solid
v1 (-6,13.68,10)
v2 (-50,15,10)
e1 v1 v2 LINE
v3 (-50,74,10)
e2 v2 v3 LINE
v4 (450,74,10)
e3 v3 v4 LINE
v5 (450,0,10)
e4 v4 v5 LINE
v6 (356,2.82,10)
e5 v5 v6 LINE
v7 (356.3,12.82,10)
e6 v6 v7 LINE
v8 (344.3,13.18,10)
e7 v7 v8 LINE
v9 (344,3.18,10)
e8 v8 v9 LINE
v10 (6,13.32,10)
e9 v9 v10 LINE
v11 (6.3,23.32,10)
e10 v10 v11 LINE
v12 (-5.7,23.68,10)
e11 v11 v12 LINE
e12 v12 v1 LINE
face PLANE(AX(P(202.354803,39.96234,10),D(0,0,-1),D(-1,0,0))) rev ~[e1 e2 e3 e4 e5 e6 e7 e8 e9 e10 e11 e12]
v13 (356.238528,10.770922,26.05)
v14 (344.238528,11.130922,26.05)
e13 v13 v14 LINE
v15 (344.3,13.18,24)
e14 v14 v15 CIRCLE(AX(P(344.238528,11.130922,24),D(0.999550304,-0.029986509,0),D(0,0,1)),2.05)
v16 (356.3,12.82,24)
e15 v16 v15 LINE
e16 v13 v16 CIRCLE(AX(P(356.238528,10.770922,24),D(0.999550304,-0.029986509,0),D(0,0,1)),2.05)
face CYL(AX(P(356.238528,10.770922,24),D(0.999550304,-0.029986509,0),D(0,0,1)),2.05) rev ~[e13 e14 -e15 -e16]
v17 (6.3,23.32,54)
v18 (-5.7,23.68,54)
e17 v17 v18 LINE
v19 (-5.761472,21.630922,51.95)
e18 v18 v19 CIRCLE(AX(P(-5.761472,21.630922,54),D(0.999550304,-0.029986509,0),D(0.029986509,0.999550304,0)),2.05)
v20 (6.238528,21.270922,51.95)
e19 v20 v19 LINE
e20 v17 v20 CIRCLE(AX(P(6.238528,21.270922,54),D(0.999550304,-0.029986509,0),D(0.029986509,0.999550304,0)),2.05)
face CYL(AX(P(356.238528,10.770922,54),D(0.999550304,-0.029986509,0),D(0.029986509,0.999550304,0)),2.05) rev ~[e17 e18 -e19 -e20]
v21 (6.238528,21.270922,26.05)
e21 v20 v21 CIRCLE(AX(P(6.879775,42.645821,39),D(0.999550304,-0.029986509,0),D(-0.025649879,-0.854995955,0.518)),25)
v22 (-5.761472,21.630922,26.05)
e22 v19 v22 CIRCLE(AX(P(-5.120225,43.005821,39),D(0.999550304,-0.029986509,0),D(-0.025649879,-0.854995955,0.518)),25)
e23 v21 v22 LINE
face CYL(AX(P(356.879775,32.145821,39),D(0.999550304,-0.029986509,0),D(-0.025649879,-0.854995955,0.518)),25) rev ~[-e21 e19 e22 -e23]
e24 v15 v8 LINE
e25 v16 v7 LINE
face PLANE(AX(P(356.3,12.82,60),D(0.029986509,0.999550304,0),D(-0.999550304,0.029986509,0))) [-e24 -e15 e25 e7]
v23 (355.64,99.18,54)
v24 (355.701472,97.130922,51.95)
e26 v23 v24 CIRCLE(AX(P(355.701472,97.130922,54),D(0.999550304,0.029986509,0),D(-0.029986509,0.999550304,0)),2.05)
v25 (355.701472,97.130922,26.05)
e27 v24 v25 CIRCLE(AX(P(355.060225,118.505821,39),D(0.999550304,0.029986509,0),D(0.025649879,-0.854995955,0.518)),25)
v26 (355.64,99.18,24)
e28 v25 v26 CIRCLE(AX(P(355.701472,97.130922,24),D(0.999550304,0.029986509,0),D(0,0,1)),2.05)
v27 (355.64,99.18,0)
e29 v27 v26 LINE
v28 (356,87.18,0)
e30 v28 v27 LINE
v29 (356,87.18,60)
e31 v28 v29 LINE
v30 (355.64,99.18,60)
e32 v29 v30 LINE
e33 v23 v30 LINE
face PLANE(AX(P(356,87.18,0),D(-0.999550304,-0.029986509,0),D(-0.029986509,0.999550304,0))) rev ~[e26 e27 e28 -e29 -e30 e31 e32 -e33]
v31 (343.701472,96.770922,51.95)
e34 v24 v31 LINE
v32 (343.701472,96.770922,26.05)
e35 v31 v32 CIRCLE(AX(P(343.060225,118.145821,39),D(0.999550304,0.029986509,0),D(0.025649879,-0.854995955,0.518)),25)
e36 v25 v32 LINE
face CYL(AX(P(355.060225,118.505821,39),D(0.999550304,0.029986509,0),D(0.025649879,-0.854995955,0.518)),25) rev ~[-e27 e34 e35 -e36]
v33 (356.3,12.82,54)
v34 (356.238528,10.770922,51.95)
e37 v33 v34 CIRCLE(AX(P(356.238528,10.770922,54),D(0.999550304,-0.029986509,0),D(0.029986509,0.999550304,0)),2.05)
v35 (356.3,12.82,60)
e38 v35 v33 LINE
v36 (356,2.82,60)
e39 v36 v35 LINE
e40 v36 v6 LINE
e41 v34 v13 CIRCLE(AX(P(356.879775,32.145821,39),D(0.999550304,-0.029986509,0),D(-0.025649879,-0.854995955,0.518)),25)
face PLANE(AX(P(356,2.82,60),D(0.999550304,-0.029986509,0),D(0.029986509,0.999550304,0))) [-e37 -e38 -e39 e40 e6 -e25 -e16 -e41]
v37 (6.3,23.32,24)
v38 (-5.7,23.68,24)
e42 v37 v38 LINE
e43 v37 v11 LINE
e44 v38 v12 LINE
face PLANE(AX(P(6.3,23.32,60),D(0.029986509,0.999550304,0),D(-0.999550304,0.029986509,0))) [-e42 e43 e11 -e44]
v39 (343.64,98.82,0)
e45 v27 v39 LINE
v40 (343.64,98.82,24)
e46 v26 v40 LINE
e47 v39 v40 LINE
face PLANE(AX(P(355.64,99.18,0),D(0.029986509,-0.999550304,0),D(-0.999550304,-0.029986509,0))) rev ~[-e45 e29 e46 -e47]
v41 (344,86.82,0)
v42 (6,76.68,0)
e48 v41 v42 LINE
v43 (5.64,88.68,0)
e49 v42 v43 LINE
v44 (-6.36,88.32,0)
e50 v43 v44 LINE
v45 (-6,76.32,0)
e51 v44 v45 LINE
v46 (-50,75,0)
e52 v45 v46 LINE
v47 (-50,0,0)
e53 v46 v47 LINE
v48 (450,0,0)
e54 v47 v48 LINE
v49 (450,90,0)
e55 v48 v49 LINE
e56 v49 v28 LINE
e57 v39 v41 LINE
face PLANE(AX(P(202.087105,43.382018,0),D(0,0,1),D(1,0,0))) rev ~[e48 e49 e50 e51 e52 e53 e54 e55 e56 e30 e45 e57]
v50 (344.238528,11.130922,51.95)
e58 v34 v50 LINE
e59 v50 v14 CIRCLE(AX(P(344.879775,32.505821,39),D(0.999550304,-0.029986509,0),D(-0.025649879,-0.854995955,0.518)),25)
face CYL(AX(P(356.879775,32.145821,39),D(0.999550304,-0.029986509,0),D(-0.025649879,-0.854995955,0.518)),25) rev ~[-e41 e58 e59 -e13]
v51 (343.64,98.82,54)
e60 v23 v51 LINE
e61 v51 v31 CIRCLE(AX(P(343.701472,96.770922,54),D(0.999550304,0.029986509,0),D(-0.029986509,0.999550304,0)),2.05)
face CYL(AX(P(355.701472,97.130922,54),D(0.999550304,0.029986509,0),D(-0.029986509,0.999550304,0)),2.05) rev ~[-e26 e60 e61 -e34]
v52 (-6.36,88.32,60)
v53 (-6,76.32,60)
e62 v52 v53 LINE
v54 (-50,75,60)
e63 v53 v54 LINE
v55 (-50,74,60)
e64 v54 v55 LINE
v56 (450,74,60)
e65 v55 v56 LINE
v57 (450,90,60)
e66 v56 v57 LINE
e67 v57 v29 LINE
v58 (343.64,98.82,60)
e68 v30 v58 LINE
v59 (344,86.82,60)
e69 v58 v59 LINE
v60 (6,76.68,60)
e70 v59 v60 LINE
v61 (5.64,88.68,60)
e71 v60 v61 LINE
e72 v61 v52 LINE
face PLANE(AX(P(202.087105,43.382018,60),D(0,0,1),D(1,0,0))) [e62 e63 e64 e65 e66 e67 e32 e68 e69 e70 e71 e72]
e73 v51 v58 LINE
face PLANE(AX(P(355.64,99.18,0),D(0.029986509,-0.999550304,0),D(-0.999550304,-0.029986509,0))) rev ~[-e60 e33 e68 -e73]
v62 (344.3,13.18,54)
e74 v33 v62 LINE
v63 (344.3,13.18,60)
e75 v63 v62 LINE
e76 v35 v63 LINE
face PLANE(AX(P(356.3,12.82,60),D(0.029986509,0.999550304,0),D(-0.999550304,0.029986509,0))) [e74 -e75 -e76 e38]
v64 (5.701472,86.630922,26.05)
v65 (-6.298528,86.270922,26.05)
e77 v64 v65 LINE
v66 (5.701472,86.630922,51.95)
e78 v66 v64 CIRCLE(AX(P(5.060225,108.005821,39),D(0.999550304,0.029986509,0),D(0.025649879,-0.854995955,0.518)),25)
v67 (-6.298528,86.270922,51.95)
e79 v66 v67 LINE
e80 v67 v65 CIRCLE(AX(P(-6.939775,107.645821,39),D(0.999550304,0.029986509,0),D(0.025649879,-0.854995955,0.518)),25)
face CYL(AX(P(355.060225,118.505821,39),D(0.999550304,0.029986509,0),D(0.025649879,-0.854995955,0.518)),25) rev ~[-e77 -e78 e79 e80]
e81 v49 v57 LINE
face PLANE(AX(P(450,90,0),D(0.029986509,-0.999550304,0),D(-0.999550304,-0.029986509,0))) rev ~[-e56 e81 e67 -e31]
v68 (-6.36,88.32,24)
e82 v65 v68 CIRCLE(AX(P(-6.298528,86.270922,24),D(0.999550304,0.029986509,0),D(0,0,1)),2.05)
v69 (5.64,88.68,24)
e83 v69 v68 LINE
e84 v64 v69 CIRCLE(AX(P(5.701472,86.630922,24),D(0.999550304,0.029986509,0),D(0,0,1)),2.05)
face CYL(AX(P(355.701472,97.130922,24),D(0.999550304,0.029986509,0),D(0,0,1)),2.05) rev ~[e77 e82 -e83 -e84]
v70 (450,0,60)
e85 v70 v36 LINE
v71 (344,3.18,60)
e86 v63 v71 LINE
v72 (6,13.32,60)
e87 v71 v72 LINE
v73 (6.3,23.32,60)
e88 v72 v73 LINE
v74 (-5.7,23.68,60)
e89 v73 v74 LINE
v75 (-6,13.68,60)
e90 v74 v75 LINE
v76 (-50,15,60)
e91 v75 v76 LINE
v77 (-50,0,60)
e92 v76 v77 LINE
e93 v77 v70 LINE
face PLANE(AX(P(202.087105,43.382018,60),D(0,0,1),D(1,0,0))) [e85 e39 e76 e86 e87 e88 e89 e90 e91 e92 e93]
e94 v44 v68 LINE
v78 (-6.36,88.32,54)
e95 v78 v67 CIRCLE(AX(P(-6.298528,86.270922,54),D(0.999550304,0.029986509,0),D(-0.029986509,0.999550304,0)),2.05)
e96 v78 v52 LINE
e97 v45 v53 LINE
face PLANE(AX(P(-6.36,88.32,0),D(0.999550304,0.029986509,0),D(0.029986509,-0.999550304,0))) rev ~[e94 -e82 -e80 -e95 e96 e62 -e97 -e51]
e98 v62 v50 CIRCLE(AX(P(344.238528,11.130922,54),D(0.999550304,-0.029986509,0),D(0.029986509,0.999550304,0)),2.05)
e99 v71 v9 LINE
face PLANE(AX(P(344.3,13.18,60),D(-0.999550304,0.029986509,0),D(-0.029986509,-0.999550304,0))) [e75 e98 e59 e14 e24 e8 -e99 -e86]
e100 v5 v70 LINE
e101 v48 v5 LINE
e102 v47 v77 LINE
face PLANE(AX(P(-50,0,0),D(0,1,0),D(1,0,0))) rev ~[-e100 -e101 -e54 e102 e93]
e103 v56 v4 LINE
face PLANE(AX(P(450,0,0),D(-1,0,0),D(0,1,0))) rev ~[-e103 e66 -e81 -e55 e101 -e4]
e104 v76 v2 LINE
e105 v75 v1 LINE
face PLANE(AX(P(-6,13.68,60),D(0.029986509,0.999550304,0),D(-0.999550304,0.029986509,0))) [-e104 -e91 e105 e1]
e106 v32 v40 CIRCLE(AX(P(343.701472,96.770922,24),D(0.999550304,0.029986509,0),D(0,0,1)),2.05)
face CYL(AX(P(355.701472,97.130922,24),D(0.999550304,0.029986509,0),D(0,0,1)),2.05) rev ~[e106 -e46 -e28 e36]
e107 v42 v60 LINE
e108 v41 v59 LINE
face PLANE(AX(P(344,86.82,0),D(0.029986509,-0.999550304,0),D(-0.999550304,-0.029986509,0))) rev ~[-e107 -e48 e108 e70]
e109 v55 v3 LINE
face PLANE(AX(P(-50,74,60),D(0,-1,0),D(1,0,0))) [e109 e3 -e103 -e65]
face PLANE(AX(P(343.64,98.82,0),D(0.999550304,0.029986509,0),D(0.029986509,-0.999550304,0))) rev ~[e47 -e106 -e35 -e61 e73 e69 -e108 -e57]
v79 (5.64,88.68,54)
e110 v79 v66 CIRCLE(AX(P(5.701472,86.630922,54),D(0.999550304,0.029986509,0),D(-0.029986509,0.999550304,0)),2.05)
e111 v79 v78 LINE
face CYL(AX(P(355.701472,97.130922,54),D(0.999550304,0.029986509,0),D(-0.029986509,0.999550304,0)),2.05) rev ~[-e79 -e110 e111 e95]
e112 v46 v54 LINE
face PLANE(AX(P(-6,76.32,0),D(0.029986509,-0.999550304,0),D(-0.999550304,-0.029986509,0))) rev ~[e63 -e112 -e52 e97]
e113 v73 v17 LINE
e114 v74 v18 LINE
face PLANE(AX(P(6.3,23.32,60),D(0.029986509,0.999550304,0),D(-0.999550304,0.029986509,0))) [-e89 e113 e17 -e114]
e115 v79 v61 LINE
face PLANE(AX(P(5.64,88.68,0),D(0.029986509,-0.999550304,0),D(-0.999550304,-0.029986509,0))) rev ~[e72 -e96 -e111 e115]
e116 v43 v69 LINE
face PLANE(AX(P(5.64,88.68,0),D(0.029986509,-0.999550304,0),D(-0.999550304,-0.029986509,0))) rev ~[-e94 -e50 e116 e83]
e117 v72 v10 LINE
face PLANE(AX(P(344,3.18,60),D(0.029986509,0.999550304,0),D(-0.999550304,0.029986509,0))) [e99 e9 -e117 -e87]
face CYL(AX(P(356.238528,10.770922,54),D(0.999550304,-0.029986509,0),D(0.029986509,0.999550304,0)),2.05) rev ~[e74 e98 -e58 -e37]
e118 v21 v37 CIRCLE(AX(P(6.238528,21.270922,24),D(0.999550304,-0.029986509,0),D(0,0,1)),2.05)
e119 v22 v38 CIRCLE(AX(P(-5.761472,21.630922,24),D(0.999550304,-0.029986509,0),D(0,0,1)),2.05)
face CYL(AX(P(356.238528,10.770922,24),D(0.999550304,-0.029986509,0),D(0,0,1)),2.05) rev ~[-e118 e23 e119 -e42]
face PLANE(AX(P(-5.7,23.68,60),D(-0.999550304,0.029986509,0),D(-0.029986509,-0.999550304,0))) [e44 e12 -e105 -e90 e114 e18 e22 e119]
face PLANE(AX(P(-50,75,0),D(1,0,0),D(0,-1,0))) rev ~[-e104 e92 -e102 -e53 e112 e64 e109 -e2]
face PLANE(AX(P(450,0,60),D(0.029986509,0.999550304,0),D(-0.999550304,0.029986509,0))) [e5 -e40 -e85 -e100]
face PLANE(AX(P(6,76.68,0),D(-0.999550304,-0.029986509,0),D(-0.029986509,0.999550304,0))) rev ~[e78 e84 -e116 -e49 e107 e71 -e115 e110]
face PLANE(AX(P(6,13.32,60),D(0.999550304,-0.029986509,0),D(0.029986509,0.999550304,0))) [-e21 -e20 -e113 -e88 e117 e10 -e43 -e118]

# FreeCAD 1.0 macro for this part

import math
import FreeCAD as App
import Part
import Sketcher
Q = App.Units.Quantity


def add_polygon(sketch, points):
    """Adds a closed chain of lines whose ends are joined by coincident constraints."""
    first, n = sketch.GeometryCount, len(points)
    for a, b in zip(points, points[1:] + points[:1]):
        sketch.addGeometry(Part.LineSegment(App.Vector(*a, 0), App.Vector(*b, 0)), False)
    for i in range(n):
        sketch.addConstraint(Sketcher.Constraint("Coincident", first + i, 2, first + (i + 1) % n, 1))

doc = App.newDocument("Part")
body = doc.addObject("PartDesign::Body", "Body")

# Sketch on XY plane
sketch1 = body.newObject("Sketcher::SketchObject", "Sketch")
sketch1.AttachmentSupport = (doc.getObject("XY_Plane"), [""])
sketch1.MapMode = "FlatFace"
add_polygon(sketch1, [(450, 0), (450, 90), (356, 87.18), (355.64, 99.18), (343.64, 98.82), (344, 86.82), (6, 76.68), (5.64, 88.68), (-6.36, 88.32), (-6, 76.32), (-50, 75), (-50, 0)])  # lines 0-11
sketch1.addConstraint(Sketcher.Constraint("Vertical", 0))
sketch1.addConstraint(Sketcher.Constraint("Vertical", 10))
sketch1.addConstraint(Sketcher.Constraint("Horizontal", 11))
sketch1.addConstraint(Sketcher.Constraint("PointOnObject", 10, 2, -1))
sketch1.addConstraint(Sketcher.Constraint("Perpendicular", 1, 2))
sketch1.addConstraint(Sketcher.Constraint("Perpendicular", 2, 3))
sketch1.addConstraint(Sketcher.Constraint("Perpendicular", 3, 4))
sketch1.addConstraint(Sketcher.Constraint("Perpendicular", 4, 5))
sketch1.addConstraint(Sketcher.Constraint("Perpendicular", 5, 6))
sketch1.addConstraint(Sketcher.Constraint("Perpendicular", 6, 7))
sketch1.addConstraint(Sketcher.Constraint("Perpendicular", 7, 8))
sketch1.addConstraint(Sketcher.Constraint("Perpendicular", 8, 9))
sketch1.addConstraint(Sketcher.Constraint("Equal", 2, 3))
sketch1.addConstraint(Sketcher.Constraint("Equal", 3, 4))
sketch1.addConstraint(Sketcher.Constraint("Equal", 4, 6))
sketch1.addConstraint(Sketcher.Constraint("Equal", 6, 7))
sketch1.addConstraint(Sketcher.Constraint("Equal", 7, 8))
sketch1.addConstraint(Sketcher.Constraint("DistanceX", 11, 1, 11, 2, Q("500 mm")))
sketch1.addConstraint(Sketcher.Constraint("DistanceY", 0, 1, 0, 2, Q("90 mm")))
sketch1.addConstraint(Sketcher.Constraint("DistanceY", 10, 2, 10, 1, Q("75 mm")))
sketch1.addConstraint(Sketcher.Constraint("DistanceX", -1, 1, 0, 2, Q("450 mm")))
sketch1.addConstraint(Sketcher.Constraint("DistanceX", -1, 1, 1, 2, Q("356 mm")))
sketch1.addConstraint(Sketcher.Constraint("DistanceX", -1, 1, 4, 2, Q("344 mm")))
sketch1.addConstraint(Sketcher.Constraint("DistanceX", -1, 1, 5, 2, Q("6 mm")))
pad1 = body.newObject("PartDesign::Pad", "Pad")
pad1.Profile = sketch1
pad1.Length = 60

# Sketch on XY plane
sketch2 = body.newObject("Sketcher::SketchObject", "Sketch001")
sketch2.AttachmentSupport = (doc.getObject("XY_Plane"), [""])
sketch2.MapMode = "FlatFace"
sketch2.AttachmentOffset = App.Placement(App.Vector(0, 0, 60), App.Rotation())
add_polygon(sketch2, [(-50, 74), (-50, 15), (-6, 13.68), (-5.7, 23.68), (6.3, 23.32), (6, 13.32), (344, 3.18), (344.3, 13.18), (356.3, 12.82), (356, 2.82), (450, 0), (450, 74)])  # lines 0-11
sketch2.addConstraint(Sketcher.Constraint("Vertical", 0))
sketch2.addConstraint(Sketcher.Constraint("Vertical", 10))
sketch2.addConstraint(Sketcher.Constraint("Horizontal", 11))
sketch2.addConstraint(Sketcher.Constraint("PointOnObject", 9, 2, -1))
sketch2.addConstraint(Sketcher.Constraint("Perpendicular", 1, 2))
sketch2.addConstraint(Sketcher.Constraint("Perpendicular", 2, 3))
sketch2.addConstraint(Sketcher.Constraint("Perpendicular", 3, 4))
sketch2.addConstraint(Sketcher.Constraint("Perpendicular", 4, 5))
sketch2.addConstraint(Sketcher.Constraint("Perpendicular", 5, 6))
sketch2.addConstraint(Sketcher.Constraint("Perpendicular", 6, 7))
sketch2.addConstraint(Sketcher.Constraint("Perpendicular", 7, 8))
sketch2.addConstraint(Sketcher.Constraint("Perpendicular", 8, 9))
sketch2.addConstraint(Sketcher.Constraint("Equal", 2, 4))
sketch2.addConstraint(Sketcher.Constraint("Equal", 4, 6))
sketch2.addConstraint(Sketcher.Constraint("Equal", 3, 7))
sketch2.addConstraint(Sketcher.Constraint("Equal", 6, 8))
sketch2.addConstraint(Sketcher.Constraint("DistanceX", 11, 2, 11, 1, Q("500 mm")))
sketch2.addConstraint(Sketcher.Constraint("DistanceY", 0, 2, 0, 1, Q("59 mm")))
sketch2.addConstraint(Sketcher.Constraint("DistanceY", 10, 1, 10, 2, Q("74 mm")))
sketch2.addConstraint(Sketcher.Constraint("DistanceX", 0, 2, -1, 1, Q("50 mm")))
sketch2.addConstraint(Sketcher.Constraint("DistanceX", 1, 2, -1, 1, Q("6 mm")))
sketch2.addConstraint(Sketcher.Constraint("DistanceX", -1, 1, 4, 2, Q("6 mm")))
sketch2.addConstraint(Sketcher.Constraint("DistanceX", -1, 1, 5, 2, Q("344 mm")))
sketch2.addConstraint(Sketcher.Constraint("DistanceY", 1, 2, 2, 2, Q("10 mm")))
pocket1 = body.newObject("PartDesign::Pocket", "Pocket")
pocket1.Profile = sketch2
pocket1.Length = 50

# Sketch on an angled plane
sketch3 = body.newObject("Sketcher::SketchObject", "Sketch002")
sketch3.Placement = App.Placement(App.Vector(355.595364, -10.667861, 0), App.Rotation(App.Vector(0.029986509, 0.999550304, 0), App.Vector(0, 0, 1.000000001), App.Vector(0.999550304, -0.029986509, 0), "ZXY"))
sketch3.addGeometry(Part.ArcOfCircle(Part.Circle(App.Vector(21.448428, 54, 0), App.Vector(0, 0, 1), 2.05), math.radians(0), math.radians(270)), False)
sketch3.addGeometry(Part.ArcOfCircle(Part.Circle(App.Vector(42.832944, 39, 0), App.Vector(0, 0, 1), 25), math.radians(148.801809), math.radians(211.198191)), False)
sketch3.addGeometry(Part.ArcOfCircle(Part.Circle(App.Vector(21.448428, 24, 0), App.Vector(0, 0, 1), 2.05), math.radians(90), math.radians(360)), False)
sketch3.addGeometry(Part.LineSegment(App.Vector(23.498428, 24, 0), App.Vector(23.498428, 54, 0)), False)
sketch3.addConstraint(Sketcher.Constraint("Coincident", 0, 2, 1, 1))
sketch3.addConstraint(Sketcher.Constraint("Coincident", 1, 2, 2, 1))
sketch3.addConstraint(Sketcher.Constraint("Tangent", 2, 2, 3, 1))
sketch3.addConstraint(Sketcher.Constraint("Tangent", 3, 2, 0, 1))
sketch3.addConstraint(Sketcher.Constraint("Vertical", 3))
sketch3.addConstraint(Sketcher.Constraint("Equal", 0, 2))
sketch3.addConstraint(Sketcher.Constraint("Vertical", 2, 3, 0, 2))
sketch3.addConstraint(Sketcher.Constraint("Vertical", 0, 2, 1, 2))
sketch3.addConstraint(Sketcher.Constraint("Radius", 1, Q("25 mm")))
sketch3.addConstraint(Sketcher.Constraint("DistanceY", 3, 1, 3, 2, Q("30 mm")))
sketch3.addConstraint(Sketcher.Constraint("Radius", 0, Q("2.05 mm")))
sketch3.addConstraint(Sketcher.Constraint("DistanceY", -1, 1, 0, 3, Q("54 mm")))
sketch3.addConstraint(Sketcher.Constraint("DistanceX", -1, 1, 0, 3, Q("21.448428 mm")))
pocket2 = body.newObject("PartDesign::Pocket", "Pocket001")
pocket2.Profile = sketch3
pocket2.Type = "ThroughAll"

# Sketch on an angled plane
sketch4 = body.newObject("Sketcher::SketchObject", "Sketch003")
sketch4.Placement = App.Placement(App.Vector(358.292936, 10.748788, 0), App.Rotation(App.Vector(-0.029986509, 0.999550304, 0), App.Vector(0, 0, 1.000000001), App.Vector(0.999550304, 0.029986509, 0), "ZXY"))
sketch4.addGeometry(Part.ArcOfCircle(Part.Circle(App.Vector(86.420997, 54, 0), App.Vector(0, 0, 1), 2.05), math.radians(0), math.radians(270)), False)
sketch4.addGeometry(Part.ArcOfCircle(Part.Circle(App.Vector(107.805513, 39, 0), App.Vector(0, 0, 1), 25), math.radians(148.801809), math.radians(211.198191)), False)
sketch4.addGeometry(Part.ArcOfCircle(Part.Circle(App.Vector(86.420997, 24, 0), App.Vector(0, 0, 1), 2.05), math.radians(90), math.radians(360)), False)
sketch4.addGeometry(Part.LineSegment(App.Vector(88.470997, 24, 0), App.Vector(88.470997, 54, 0)), False)
sketch4.addConstraint(Sketcher.Constraint("Coincident", 0, 2, 1, 1))
sketch4.addConstraint(Sketcher.Constraint("Coincident", 1, 2, 2, 1))
sketch4.addConstraint(Sketcher.Constraint("Tangent", 2, 2, 3, 1))
sketch4.addConstraint(Sketcher.Constraint("Tangent", 3, 2, 0, 1))
sketch4.addConstraint(Sketcher.Constraint("Vertical", 3))
sketch4.addConstraint(Sketcher.Constraint("Equal", 0, 2))
sketch4.addConstraint(Sketcher.Constraint("Vertical", 2, 3, 0, 2))
sketch4.addConstraint(Sketcher.Constraint("Vertical", 0, 2, 1, 2))
sketch4.addConstraint(Sketcher.Constraint("Radius", 1, Q("25 mm")))
sketch4.addConstraint(Sketcher.Constraint("DistanceY", 3, 1, 3, 2, Q("30 mm")))
sketch4.addConstraint(Sketcher.Constraint("Radius", 0, Q("2.05 mm")))
sketch4.addConstraint(Sketcher.Constraint("DistanceY", -1, 1, 0, 3, Q("54 mm")))
sketch4.addConstraint(Sketcher.Constraint("DistanceX", -1, 1, 0, 3, Q("86.420997 mm")))
pocket3 = body.newObject("PartDesign::Pocket", "Pocket002")
pocket3.Profile = sketch4
pocket3.Type = "ThroughAll"

doc.recompute()
